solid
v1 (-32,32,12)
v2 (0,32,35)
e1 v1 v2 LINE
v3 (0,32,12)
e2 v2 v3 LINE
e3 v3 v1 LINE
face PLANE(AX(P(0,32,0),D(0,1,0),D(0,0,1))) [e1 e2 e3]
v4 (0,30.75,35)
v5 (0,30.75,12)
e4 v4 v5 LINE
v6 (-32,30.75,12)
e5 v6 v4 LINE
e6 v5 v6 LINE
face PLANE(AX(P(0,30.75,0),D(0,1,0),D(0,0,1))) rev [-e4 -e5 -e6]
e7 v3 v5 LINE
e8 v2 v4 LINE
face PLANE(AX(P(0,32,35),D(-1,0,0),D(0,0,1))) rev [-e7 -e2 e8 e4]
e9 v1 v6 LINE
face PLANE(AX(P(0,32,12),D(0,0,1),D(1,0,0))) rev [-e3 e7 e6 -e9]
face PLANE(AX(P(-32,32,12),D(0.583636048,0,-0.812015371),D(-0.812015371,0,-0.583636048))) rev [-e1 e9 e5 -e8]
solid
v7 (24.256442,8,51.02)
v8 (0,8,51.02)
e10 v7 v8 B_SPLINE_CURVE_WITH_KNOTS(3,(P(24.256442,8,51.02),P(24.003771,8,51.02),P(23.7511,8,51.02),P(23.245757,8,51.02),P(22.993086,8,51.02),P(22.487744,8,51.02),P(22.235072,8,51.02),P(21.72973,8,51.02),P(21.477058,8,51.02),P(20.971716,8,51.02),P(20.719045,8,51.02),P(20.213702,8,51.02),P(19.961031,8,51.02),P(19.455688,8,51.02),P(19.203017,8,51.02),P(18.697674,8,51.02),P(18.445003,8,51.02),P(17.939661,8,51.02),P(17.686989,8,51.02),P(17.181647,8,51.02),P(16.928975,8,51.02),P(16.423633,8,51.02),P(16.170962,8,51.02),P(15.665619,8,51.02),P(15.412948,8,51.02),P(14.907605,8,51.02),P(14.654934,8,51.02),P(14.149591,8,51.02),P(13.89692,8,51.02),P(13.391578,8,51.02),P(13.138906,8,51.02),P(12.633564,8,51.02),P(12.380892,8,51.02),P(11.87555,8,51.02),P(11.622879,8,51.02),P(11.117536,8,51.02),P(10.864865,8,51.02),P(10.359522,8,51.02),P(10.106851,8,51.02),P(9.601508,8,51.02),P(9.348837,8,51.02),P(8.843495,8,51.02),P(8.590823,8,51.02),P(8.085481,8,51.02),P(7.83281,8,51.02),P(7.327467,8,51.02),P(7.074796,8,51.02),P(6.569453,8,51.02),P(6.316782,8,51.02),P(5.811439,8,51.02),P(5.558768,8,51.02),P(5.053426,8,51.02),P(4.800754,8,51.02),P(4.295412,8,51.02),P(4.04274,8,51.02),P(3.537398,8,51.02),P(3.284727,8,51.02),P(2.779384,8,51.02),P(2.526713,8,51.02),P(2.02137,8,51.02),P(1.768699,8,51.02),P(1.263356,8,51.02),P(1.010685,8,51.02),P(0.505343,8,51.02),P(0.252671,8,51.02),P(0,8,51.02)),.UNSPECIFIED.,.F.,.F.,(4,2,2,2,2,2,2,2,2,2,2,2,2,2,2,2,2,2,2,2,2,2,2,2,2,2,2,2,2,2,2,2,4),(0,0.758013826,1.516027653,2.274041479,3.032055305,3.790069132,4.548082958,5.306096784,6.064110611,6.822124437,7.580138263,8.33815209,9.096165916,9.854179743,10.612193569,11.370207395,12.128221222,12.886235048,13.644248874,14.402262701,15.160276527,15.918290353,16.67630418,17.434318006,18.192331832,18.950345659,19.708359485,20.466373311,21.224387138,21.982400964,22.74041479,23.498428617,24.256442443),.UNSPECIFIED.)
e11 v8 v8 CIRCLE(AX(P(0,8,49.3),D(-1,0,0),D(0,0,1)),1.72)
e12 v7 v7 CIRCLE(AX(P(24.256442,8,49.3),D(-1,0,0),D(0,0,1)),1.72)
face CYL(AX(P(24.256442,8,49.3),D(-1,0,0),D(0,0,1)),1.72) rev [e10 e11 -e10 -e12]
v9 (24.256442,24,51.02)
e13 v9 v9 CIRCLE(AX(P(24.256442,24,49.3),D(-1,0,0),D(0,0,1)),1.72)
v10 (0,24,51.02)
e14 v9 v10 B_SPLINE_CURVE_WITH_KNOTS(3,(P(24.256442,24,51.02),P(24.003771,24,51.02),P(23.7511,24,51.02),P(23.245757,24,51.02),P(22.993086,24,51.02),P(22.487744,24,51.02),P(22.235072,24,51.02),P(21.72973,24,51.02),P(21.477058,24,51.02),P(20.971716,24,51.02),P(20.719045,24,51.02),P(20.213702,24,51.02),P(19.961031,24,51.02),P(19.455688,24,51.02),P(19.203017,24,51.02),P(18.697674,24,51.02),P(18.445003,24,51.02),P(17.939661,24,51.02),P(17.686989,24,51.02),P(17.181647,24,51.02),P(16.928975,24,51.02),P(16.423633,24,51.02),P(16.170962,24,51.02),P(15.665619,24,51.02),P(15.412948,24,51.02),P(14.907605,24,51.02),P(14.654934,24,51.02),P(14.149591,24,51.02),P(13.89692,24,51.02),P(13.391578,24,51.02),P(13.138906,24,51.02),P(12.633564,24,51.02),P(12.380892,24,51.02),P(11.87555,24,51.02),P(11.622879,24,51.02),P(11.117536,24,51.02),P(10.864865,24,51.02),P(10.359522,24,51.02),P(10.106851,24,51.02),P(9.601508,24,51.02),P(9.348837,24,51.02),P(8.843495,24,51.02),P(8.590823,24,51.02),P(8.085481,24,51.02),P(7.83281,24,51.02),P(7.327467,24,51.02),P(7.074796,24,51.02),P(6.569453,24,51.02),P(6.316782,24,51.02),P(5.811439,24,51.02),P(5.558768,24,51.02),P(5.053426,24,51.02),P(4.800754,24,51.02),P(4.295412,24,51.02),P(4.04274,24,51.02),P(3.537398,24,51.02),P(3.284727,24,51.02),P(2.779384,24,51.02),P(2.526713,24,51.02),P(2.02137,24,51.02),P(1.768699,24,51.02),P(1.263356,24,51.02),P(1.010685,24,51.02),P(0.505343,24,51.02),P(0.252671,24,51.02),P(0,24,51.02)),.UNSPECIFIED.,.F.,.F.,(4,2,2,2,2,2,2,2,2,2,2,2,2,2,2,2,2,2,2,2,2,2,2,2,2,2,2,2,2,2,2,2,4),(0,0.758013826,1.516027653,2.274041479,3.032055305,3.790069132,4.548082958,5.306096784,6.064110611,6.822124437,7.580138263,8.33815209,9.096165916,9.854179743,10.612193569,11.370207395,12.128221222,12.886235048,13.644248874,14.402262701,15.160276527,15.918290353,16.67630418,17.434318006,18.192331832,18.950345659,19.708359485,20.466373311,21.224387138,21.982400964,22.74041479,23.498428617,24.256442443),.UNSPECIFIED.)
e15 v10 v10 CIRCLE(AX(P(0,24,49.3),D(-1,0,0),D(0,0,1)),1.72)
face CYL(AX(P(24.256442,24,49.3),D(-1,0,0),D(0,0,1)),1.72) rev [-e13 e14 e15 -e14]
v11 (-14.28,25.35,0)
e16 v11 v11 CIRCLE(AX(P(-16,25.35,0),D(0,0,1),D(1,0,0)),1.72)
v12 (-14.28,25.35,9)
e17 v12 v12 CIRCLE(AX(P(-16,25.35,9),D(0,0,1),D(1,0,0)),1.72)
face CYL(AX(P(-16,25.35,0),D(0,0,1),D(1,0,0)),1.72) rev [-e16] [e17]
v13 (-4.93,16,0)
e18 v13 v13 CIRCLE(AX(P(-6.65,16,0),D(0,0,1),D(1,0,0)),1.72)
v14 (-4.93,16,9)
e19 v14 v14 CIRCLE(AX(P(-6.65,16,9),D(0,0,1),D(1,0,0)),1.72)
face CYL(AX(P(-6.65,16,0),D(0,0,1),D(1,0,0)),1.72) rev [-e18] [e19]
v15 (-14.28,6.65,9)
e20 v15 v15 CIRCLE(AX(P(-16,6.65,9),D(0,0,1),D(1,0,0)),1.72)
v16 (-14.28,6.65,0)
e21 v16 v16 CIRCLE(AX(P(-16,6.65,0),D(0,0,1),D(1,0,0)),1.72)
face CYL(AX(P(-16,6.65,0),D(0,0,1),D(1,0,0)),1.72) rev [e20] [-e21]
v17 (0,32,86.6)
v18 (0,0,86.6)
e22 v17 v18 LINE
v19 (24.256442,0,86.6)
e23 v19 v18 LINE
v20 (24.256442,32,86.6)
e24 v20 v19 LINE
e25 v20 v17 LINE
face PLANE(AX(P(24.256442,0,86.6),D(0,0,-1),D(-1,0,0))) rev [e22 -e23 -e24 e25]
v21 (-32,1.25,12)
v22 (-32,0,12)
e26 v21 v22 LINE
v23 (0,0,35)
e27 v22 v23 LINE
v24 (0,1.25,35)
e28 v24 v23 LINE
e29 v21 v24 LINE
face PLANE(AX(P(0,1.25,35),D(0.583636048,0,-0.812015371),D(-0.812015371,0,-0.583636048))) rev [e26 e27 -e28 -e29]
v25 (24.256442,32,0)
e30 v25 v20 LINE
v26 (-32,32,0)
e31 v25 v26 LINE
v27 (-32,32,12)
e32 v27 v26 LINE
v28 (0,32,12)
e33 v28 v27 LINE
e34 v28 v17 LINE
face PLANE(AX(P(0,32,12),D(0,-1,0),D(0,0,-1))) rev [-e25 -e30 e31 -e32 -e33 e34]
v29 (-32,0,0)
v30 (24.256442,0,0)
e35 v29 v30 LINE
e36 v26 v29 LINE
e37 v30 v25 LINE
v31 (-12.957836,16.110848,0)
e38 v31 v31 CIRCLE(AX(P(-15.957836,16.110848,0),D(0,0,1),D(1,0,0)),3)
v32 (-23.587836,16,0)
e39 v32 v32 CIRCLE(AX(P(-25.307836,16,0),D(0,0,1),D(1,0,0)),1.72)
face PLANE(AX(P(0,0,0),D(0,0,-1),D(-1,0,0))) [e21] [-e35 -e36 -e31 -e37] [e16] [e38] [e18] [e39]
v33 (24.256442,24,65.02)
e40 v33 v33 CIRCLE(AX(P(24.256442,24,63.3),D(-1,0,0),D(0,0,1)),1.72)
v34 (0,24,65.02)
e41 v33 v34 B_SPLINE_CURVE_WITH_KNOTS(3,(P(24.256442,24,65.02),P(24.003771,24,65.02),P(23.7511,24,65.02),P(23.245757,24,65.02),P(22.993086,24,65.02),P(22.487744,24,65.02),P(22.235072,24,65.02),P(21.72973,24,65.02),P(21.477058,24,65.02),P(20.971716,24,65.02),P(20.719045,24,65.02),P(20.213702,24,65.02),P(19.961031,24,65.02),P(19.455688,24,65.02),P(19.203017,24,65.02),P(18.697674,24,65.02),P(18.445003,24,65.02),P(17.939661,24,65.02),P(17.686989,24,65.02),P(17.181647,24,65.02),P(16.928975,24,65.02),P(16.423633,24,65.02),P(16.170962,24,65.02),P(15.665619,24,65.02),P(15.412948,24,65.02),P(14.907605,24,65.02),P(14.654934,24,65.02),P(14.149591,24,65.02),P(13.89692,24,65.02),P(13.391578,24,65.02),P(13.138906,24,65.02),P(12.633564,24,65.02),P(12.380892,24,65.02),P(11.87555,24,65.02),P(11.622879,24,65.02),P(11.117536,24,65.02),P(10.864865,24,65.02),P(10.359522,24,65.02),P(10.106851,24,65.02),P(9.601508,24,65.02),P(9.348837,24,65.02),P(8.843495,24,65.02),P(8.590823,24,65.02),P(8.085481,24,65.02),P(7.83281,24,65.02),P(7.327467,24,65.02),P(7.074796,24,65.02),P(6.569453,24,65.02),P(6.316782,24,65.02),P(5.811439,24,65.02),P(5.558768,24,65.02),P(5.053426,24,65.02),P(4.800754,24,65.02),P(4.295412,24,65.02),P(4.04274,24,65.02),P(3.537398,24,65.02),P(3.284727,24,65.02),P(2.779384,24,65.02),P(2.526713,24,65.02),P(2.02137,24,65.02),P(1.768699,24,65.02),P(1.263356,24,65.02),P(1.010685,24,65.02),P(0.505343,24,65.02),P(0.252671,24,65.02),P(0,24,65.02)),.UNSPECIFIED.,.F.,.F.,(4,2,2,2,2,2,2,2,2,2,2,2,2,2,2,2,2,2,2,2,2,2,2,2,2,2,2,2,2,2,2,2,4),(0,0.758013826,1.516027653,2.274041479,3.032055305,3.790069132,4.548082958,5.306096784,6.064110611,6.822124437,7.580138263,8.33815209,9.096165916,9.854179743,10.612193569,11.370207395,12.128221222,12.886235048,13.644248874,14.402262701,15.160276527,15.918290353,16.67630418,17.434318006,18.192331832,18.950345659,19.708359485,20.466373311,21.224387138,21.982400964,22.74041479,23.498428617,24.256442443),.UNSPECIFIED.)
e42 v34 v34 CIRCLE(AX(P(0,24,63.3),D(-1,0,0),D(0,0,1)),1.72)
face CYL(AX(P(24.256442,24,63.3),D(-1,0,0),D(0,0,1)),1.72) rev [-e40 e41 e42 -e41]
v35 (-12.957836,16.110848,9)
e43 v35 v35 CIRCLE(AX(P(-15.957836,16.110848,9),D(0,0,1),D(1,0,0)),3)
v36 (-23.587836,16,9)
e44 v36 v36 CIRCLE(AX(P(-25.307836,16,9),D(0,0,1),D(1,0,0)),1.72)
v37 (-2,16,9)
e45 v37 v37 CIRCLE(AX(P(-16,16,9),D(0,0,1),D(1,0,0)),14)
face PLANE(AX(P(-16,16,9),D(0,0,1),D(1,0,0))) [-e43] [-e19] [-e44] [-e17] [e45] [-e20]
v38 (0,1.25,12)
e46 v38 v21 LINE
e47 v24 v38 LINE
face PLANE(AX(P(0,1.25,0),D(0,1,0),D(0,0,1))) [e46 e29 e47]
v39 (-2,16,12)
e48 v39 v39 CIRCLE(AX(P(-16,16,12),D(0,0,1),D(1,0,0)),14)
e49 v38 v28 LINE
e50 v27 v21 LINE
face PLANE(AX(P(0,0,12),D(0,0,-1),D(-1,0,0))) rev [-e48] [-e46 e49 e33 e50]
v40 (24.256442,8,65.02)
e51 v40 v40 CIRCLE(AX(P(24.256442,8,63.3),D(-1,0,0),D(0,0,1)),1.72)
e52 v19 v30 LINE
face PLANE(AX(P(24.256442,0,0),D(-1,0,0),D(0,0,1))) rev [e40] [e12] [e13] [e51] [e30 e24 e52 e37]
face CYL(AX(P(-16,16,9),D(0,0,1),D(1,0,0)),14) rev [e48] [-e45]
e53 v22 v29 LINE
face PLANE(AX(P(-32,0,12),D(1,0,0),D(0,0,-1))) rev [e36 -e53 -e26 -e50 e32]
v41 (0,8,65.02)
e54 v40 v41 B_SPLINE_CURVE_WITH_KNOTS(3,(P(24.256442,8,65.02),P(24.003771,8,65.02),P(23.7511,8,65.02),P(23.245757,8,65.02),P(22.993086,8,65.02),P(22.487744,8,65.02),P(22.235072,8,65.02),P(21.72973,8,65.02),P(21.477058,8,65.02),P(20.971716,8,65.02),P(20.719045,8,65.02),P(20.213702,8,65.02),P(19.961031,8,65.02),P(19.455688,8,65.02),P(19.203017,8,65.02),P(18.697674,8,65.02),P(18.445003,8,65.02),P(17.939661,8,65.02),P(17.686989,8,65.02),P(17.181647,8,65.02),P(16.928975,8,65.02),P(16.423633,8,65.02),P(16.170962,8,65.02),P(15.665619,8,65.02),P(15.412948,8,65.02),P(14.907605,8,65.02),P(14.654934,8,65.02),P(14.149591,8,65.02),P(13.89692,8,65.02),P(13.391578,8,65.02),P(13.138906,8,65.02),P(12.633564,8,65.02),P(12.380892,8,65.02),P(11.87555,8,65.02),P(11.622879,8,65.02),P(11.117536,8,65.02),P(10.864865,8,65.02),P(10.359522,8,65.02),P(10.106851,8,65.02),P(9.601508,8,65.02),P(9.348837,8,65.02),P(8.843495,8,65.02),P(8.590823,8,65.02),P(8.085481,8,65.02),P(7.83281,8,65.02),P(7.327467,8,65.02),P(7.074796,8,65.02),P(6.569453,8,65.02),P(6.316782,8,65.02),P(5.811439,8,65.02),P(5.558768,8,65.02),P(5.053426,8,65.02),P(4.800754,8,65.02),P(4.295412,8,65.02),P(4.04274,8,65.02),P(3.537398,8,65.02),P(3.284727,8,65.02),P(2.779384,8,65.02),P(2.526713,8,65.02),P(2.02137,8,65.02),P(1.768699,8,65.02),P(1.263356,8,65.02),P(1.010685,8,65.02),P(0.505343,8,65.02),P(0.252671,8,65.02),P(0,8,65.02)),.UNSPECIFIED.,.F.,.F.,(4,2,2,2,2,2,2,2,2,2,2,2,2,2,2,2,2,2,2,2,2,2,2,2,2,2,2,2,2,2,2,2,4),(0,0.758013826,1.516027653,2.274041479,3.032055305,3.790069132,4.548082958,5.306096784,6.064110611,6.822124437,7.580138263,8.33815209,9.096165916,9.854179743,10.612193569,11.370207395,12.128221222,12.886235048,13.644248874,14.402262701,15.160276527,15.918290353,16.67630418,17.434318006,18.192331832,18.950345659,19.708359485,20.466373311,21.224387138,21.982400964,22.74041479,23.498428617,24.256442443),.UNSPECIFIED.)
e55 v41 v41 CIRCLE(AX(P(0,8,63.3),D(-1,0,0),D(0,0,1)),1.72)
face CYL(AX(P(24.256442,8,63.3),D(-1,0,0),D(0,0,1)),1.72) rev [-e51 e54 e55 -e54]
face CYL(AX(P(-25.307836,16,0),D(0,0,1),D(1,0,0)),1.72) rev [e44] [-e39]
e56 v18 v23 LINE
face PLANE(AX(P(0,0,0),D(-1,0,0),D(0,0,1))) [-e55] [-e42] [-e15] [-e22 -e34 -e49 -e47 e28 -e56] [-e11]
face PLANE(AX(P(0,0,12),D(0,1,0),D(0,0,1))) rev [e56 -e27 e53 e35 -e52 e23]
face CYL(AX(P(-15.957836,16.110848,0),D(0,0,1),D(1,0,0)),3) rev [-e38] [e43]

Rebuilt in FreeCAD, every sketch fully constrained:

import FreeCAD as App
import Part
import Sketcher


def add_polygon(sketch, points):
    """Adds a closed chain of lines whose ends are joined by coincident constraints."""
    first, n = sketch.GeometryCount, len(points)
    for a, b in zip(points, points[1:] + points[:1]):
        sketch.addGeometry(Part.LineSegment(App.Vector(*a, 0), App.Vector(*b, 0)), False)
    for i in range(n):
        sketch.addConstraint(Sketcher.Constraint("Coincident", first + i, 2, first + (i + 1) % n, 1))

doc = App.newDocument("Part")
params = doc.addObject("Spreadsheet::Sheet", "Params")
for row, (alias, value) in enumerate([
    ("sketch1_width", "32 mm"),
    ("pad1_length", "12 mm"),
    ("sketch2_width", "32 mm"),
    ("sketch2_height", "86.6 mm"),
    ("pad2_length", "24.256442 mm"),
    ("sketch3_diameter", "28 mm"),
    ("pocket1_length", "3 mm"),
    ("sketch4_diameter", "6 mm"),
    ("sketch5_diameter", "3.44 mm"),
    ("sketch6_diameter", "3.44 mm"),
    ("sketch7_width", "32 mm"),
    ("sketch7_height", "23 mm"),
    ("pad3_length", "1.25 mm"),
    ("sketch8_width", "32 mm"),
    ("sketch8_height", "23 mm"),
    ("pad4_length", "1.25 mm"),
], start=1):
    params.set(f"A{row}", alias)
    params.set(f"B{row}", "=" + value)
    params.setAlias(f"B{row}", alias)

body = doc.addObject("PartDesign::Body", "Body")

# Sketch on XY plane
sketch1 = doc.addObject("Sketcher::SketchObject", "Sketch")
body.addObject(sketch1)
sketch1.AttachmentSupport = (doc.XY_Plane, [""])
sketch1.MapMode = "FlatFace"
add_polygon(sketch1, [(-32, 0), (0, 0), (0, 32), (-32, 32)])  # lines 0-3
sketch1.addConstraint([
    Sketcher.Constraint("Horizontal", 0),
    Sketcher.Constraint("Vertical", 1),
    Sketcher.Constraint("Horizontal", 2),
    Sketcher.Constraint("Vertical", 3),
    Sketcher.Constraint("Coincident", 0, 2, -1, 1),
    Sketcher.Constraint("Equal", 2, 1),
    Sketcher.Constraint("DistanceX", 0, 1, 0, 2, 32.0),
])
sketch1.setExpression("Constraints[10]", "Params.sketch1_width")
pad1 = doc.addObject("PartDesign::Pad", "Pad")
body.addObject(pad1)
pad1.Profile = sketch1
pad1.setExpression("Length", "Params.pad1_length")

# Sketch on YZ plane
sketch2 = doc.addObject("Sketcher::SketchObject", "Sketch001")
body.addObject(sketch2)
sketch2.AttachmentSupport = (doc.YZ_Plane, [""])
sketch2.MapMode = "FlatFace"
add_polygon(sketch2, [(0, 87), (0, 0), (32, 0), (32, 87)])  # lines 0-3
sketch2.addConstraint([
    Sketcher.Constraint("Vertical", 0),
    Sketcher.Constraint("Horizontal", 1),
    Sketcher.Constraint("Vertical", 2),
    Sketcher.Constraint("Horizontal", 3),
    Sketcher.Constraint("Coincident", 0, 2, -1, 1),
    Sketcher.Constraint("DistanceX", 1, 1, 1, 2, 32.0),
    Sketcher.Constraint("DistanceY", 0, 2, 0, 1, 86.6),
])
sketch2.setExpression("Constraints[9]", "Params.sketch2_width")
sketch2.setExpression("Constraints[10]", "Params.sketch2_height")
pad2 = doc.addObject("PartDesign::Pad", "Pad001")
body.addObject(pad2)
pad2.Profile = sketch2
pad2.setExpression("Length", "Params.pad2_length")

# Sketch on XY plane
sketch3 = doc.addObject("Sketcher::SketchObject", "Sketch002")
body.addObject(sketch3)
sketch3.AttachmentSupport = (doc.XY_Plane, [""])
sketch3.MapMode = "FlatFace"
sketch3.AttachmentOffset = App.Placement(App.Vector(0, 0, 12), App.Rotation())
sketch3.addGeometry(Part.Circle(App.Vector(-16, 16, 0), App.Vector(0, 0, 1), 14), False)
sketch3.addConstraint([
    Sketcher.Constraint("Diameter", 0, 28.0),
    Sketcher.Constraint("DistanceX", 0, 3, -1, 1, 16.0),
    Sketcher.Constraint("DistanceY", -1, 1, 0, 3, 16.0),
])
sketch3.setExpression("Constraints[0]", "Params.sketch3_diameter")
pocket1 = doc.addObject("PartDesign::Pocket", "Pocket")
body.addObject(pocket1)
pocket1.Profile = sketch3
pocket1.setExpression("Length", "Params.pocket1_length")

# Sketch on XY plane
sketch4 = doc.addObject("Sketcher::SketchObject", "Sketch003")
body.addObject(sketch4)
sketch4.AttachmentSupport = (doc.XY_Plane, [""])
sketch4.MapMode = "FlatFace"
sketch4.AttachmentOffset = App.Placement(App.Vector(0, 0, 9), App.Rotation())
sketch4.addGeometry(Part.Circle(App.Vector(-16, 16.1, 0), App.Vector(0, 0, 1), 3), False)
sketch4.addConstraint([
    Sketcher.Constraint("Diameter", 0, 6.0),
    Sketcher.Constraint("DistanceY", -1, 1, 0, 3, 16.110848),
    Sketcher.Constraint("DistanceX", 0, 3, -1, 1, 15.957836),
])
sketch4.setExpression("Constraints[0]", "Params.sketch4_diameter")
pocket2 = doc.addObject("PartDesign::Pocket", "Pocket001")
body.addObject(pocket2)
pocket2.Profile = sketch4
pocket2.Type = "ThroughAll"

# Sketch on XY plane
sketch5 = doc.addObject("Sketcher::SketchObject", "Sketch004")
body.addObject(sketch5)
sketch5.AttachmentSupport = (doc.XY_Plane, [""])
sketch5.MapMode = "FlatFace"
sketch5.AttachmentOffset = App.Placement(App.Vector(0, 0, 9), App.Rotation())
sketch5.addGeometry([
    Part.Circle(App.Vector(-16, 25.4, 0), App.Vector(0, 0, 1), 1.7),
    Part.Circle(App.Vector(-16, 6.7, 0), App.Vector(0, 0, 1), 1.7),
    Part.Circle(App.Vector(-6.7, 16, 0), App.Vector(0, 0, 1), 1.7),
    Part.Circle(App.Vector(-25.3, 16, 0), App.Vector(0, 0, 1), 1.7),
], False)
sketch5.addConstraint([
    Sketcher.Constraint("Equal", 0, 1),
    Sketcher.Constraint("Equal", 1, 2),
    Sketcher.Constraint("Equal", 2, 3),
    Sketcher.Constraint("Horizontal", 2, 3, 3, 3),
    Sketcher.Constraint("Vertical", 0, 3, 1, 3),
    Sketcher.Constraint("Diameter", 0, 3.44),
    Sketcher.Constraint("DistanceX", 0, 3, -1, 1, 16.0),
    Sketcher.Constraint("DistanceY", -1, 1, 2, 3, 16.0),
    Sketcher.Constraint("DistanceY", 1, 3, 0, 3, 18.7),
    Sketcher.Constraint("DistanceY", -1, 1, 0, 3, 25.35),
    Sketcher.Constraint("DistanceX", 2, 3, -1, 1, 6.65),
    Sketcher.Constraint("DistanceX", 3, 3, -1, 1, 25.307836),
])
sketch5.setExpression("Constraints[5]", "Params.sketch5_diameter")
pocket3 = doc.addObject("PartDesign::Pocket", "Pocket002")
body.addObject(pocket3)
pocket3.Profile = sketch5
pocket3.Type = "ThroughAll"

# Sketch on YZ plane
sketch6 = doc.addObject("Sketcher::SketchObject", "Sketch005")
body.addObject(sketch6)
sketch6.AttachmentSupport = (doc.YZ_Plane, [""])
sketch6.MapMode = "FlatFace"
sketch6.addGeometry([
    Part.Circle(App.Vector(24, 63.3, 0), App.Vector(0, 0, 1), 1.7),
    Part.Circle(App.Vector(24, 49.3, 0), App.Vector(0, 0, 1), 1.7),
    Part.Circle(App.Vector(8, 63.3, 0), App.Vector(0, 0, 1), 1.7),
    Part.Circle(App.Vector(8, 49.3, 0), App.Vector(0, 0, 1), 1.7),
], False)
sketch6.addConstraint([
    Sketcher.Constraint("Equal", 0, 1),
    Sketcher.Constraint("Equal", 1, 2),
    Sketcher.Constraint("Equal", 2, 3),
    Sketcher.Constraint("Horizontal", 0, 3, 2, 3),
    Sketcher.Constraint("Horizontal", 1, 3, 3, 3),
    Sketcher.Constraint("Vertical", 0, 3, 1, 3),
    Sketcher.Constraint("Vertical", 2, 3, 3, 3),
    Sketcher.Constraint("Diameter", 0, 3.44),
    Sketcher.Constraint("DistanceX", -1, 1, 0, 3, 24.0),
    Sketcher.Constraint("DistanceX", -1, 1, 2, 3, 8.0),
    Sketcher.Constraint("DistanceY", 1, 3, 0, 3, 14.0),
    Sketcher.Constraint("DistanceY", -1, 1, 0, 3, 63.3),
])
sketch6.setExpression("Constraints[7]", "Params.sketch6_diameter")
pocket4 = doc.addObject("PartDesign::Pocket", "Pocket003")
body.addObject(pocket4)
pocket4.Profile = sketch6
pocket4.Type = "ThroughAll"
pocket4.Reversed = True

# Sketch on XZ plane
sketch7 = doc.addObject("Sketcher::SketchObject", "Sketch006")
body.addObject(sketch7)
sketch7.AttachmentSupport = (doc.XZ_Plane, [""])
sketch7.MapMode = "FlatFace"
add_polygon(sketch7, [(0, 12), (-32, 12), (0, 35)])  # lines 0-2
sketch7.addConstraint([
    Sketcher.Constraint("Horizontal", 0),
    Sketcher.Constraint("Vertical", 2),
    Sketcher.Constraint("PointOnObject", 1, 2, -2),
    Sketcher.Constraint("DistanceX", 0, 2, 0, 1, 32.0),
    Sketcher.Constraint("DistanceY", 2, 2, 2, 1, 23.0),
    Sketcher.Constraint("DistanceY", -1, 1, 0, 2, 12.0),
])
sketch7.setExpression("Constraints[6]", "Params.sketch7_width")
sketch7.setExpression("Constraints[7]", "Params.sketch7_height")
pad3 = doc.addObject("PartDesign::Pad", "Pad002")
body.addObject(pad3)
pad3.Profile = sketch7
pad3.setExpression("Length", "Params.pad3_length")
pad3.Reversed = True
body2 = doc.addObject("PartDesign::Body", "Body001")

# Sketch on XZ plane
sketch8 = doc.addObject("Sketcher::SketchObject", "Sketch007")
body2.addObject(sketch8)
sketch8.AttachmentSupport = (doc.getObject("XZ_Plane001"), [""])
sketch8.MapMode = "FlatFace"
sketch8.AttachmentOffset = App.Placement(App.Vector(0, 0, -32), App.Rotation())
add_polygon(sketch8, [(0, 12), (0, 35), (-32, 12)])  # lines 0-2
sketch8.addConstraint([
    Sketcher.Constraint("Vertical", 0),
    Sketcher.Constraint("Horizontal", 2),
    Sketcher.Constraint("PointOnObject", 0, 2, -2),
    Sketcher.Constraint("DistanceX", 2, 1, 2, 2, 32.0),
    Sketcher.Constraint("DistanceY", 0, 1, 0, 2, 23.0),
    Sketcher.Constraint("DistanceY", -1, 1, 0, 2, 35.0),
])
sketch8.setExpression("Constraints[6]", "Params.sketch8_width")
sketch8.setExpression("Constraints[7]", "Params.sketch8_height")
pad4 = doc.addObject("PartDesign::Pad", "Pad003")
body2.addObject(pad4)
pad4.Profile = sketch8
pad4.setExpression("Length", "Params.pad4_length")

doc.recompute()
